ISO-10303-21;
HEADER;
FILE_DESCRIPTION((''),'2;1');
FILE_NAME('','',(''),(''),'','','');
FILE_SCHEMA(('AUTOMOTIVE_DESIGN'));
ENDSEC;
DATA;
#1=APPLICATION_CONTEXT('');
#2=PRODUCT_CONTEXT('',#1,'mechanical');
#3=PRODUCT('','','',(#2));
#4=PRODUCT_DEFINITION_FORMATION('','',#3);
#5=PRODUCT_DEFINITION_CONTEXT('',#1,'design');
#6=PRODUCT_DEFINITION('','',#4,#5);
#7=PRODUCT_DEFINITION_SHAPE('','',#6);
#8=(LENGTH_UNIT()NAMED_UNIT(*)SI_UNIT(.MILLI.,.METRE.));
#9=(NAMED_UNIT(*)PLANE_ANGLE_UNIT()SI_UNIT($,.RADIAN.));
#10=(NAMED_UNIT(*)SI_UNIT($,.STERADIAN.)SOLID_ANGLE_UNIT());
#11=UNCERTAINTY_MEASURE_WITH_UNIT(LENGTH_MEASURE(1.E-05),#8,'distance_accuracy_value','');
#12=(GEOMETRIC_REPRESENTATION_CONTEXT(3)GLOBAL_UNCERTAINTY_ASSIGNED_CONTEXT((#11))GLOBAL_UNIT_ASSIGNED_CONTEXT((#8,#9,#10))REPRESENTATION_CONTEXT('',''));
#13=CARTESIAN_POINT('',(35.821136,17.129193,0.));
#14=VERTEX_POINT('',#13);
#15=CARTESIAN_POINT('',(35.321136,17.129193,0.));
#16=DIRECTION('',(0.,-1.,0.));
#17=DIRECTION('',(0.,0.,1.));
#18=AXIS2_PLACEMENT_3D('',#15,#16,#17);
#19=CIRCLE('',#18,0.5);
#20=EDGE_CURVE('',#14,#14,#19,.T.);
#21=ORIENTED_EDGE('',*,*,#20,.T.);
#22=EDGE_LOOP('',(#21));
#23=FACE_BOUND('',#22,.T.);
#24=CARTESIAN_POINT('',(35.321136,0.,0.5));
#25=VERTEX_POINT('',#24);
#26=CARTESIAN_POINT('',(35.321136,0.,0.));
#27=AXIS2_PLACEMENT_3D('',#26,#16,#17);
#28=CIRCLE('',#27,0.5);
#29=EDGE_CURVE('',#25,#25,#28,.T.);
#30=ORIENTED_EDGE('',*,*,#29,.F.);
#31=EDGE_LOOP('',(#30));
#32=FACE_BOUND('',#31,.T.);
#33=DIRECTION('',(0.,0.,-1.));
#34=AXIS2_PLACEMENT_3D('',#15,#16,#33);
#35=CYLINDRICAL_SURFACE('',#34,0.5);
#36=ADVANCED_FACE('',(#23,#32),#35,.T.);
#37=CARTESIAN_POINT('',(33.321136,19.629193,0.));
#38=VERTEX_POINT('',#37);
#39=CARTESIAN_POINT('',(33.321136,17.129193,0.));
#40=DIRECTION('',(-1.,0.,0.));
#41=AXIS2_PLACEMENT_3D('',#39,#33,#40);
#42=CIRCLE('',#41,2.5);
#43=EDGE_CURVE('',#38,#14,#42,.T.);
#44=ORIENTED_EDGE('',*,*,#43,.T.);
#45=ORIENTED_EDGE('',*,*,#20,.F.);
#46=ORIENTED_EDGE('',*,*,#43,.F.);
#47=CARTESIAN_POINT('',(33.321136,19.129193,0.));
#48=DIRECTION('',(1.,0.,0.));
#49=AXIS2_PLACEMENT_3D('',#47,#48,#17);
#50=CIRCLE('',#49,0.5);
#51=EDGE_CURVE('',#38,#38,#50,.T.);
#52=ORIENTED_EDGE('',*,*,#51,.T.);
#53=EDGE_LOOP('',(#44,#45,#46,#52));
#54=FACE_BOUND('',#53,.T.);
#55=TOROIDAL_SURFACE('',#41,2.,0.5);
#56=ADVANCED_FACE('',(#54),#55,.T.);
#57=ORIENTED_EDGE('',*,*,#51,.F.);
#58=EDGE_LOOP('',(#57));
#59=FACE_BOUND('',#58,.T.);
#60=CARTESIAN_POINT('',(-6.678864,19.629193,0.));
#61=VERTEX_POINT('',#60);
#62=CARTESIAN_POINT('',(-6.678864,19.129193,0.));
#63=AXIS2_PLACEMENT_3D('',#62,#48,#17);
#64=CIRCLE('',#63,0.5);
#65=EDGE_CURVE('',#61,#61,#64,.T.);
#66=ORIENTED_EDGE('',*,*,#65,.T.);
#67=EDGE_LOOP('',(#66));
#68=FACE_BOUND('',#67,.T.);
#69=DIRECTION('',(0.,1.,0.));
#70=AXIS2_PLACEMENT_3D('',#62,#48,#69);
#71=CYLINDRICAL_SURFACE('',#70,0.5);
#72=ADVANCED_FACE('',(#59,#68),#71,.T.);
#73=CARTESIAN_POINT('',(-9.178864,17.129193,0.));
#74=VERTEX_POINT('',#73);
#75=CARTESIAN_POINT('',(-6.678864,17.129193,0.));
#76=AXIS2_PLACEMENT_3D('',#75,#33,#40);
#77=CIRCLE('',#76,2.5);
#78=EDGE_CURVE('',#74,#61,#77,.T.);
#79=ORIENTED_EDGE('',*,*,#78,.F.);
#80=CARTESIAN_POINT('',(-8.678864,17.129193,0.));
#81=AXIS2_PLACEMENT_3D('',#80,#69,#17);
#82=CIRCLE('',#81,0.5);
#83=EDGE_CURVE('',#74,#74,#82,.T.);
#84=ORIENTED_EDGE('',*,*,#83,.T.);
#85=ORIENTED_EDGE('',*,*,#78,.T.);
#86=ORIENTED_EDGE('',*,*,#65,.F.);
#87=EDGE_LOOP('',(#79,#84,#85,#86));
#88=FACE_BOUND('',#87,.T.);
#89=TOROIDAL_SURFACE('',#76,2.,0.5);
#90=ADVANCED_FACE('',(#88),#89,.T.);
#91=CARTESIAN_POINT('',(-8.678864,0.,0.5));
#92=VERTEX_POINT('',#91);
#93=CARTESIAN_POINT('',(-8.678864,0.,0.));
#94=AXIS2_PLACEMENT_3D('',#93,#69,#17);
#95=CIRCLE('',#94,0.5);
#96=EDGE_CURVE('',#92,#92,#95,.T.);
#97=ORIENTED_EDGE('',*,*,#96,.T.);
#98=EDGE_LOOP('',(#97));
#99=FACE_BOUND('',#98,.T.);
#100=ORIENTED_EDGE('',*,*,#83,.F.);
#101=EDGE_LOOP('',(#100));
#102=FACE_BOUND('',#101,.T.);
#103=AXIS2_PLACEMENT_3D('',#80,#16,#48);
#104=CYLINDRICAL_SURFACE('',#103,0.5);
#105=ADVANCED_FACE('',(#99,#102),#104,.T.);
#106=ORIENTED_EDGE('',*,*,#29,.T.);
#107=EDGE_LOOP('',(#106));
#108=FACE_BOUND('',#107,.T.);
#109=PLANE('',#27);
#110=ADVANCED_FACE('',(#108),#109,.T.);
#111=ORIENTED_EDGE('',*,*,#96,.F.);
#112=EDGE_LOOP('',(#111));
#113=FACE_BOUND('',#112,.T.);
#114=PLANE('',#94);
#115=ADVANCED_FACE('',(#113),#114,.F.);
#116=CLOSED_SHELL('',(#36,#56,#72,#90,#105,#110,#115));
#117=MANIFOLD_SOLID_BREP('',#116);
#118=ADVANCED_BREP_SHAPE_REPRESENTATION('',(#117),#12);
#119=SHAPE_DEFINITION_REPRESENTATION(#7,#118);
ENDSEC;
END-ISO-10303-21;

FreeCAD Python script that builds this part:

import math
import FreeCAD as App
import Part
import Sketcher
from FreeCAD import Vector
Q = App.Units.Quantity

doc = App.newDocument("Part")
body = doc.addObject("PartDesign::Body", "Body")

# Sketch on XZ plane
sketch1 = body.newObject("Sketcher::SketchObject", "Sketch")
sketch1.AttachmentSupport = (doc.getObject("XZ_Plane"), [""])
sketch1.MapMode = "FlatFace"
sketch1.addGeometry(Part.Circle(Vector(-8.7, 0, 0), Vector(0, 0, 1), 0.5), False)
sketch1.addConstraint([
    Sketcher.Constraint("PointOnObject", 0, 3, -1),
    Sketcher.Constraint("Diameter", 0, Q("1 mm")),
    Sketcher.Constraint("DistanceX", 0, 3, -1, 1, Q("8.678864 mm")),
])

# Sketch on XY plane
sketch2 = body.newObject("Sketcher::SketchObject", "Sketch001")
sketch2.AttachmentSupport = (doc.getObject("XY_Plane"), [""])
sketch2.MapMode = "FlatFace"
sketch2.addGeometry([
    Part.LineSegment(Vector(-8.7, 0, 0), Vector(-8.7, 17.1, 0)),  # 0
    Part.ArcOfCircle(Part.Circle(Vector(-6.7, 17.1, 0), Vector(0, 0, 1), 2), math.radians(90), math.radians(180)),  # 1
    Part.LineSegment(Vector(-6.7, 19.1, 0), Vector(33.3, 19.1, 0)),  # 2
    Part.ArcOfCircle(Part.Circle(Vector(33.3, 17.1, 0), Vector(0, 0, 1), 2), math.radians(0), math.radians(90)),  # 3
    Part.LineSegment(Vector(35.3, 17.1, 0), Vector(35.3, 0, 0)),  # 4
], False)
sketch2.addConstraint([
    Sketcher.Constraint("Tangent", 0, 2, 1, 2),
    Sketcher.Constraint("Tangent", 1, 1, 2, 1),
    Sketcher.Constraint("Tangent", 2, 2, 3, 2),
    Sketcher.Constraint("Tangent", 3, 1, 4, 1),
    Sketcher.Constraint("Vertical", 0),
    Sketcher.Constraint("Horizontal", 2),
    Sketcher.Constraint("Vertical", 4),
    Sketcher.Constraint("Equal", 1, 3),
    Sketcher.Constraint("PointOnObject", 0, 1, -1),
    Sketcher.Constraint("PointOnObject", 4, 2, -1),
    Sketcher.Constraint("Radius", 1, Q("2 mm")),
    Sketcher.Constraint("DistanceX", 2, 1, 2, 2, Q("40 mm")),
    Sketcher.Constraint("DistanceY", 0, 1, 0, 2, Q("17.129193 mm")),
    Sketcher.Constraint("DistanceX", 1, 3, -1, 1, Q("6.678864 mm")),
])
doc.recompute()

additivepipe = body.newObject("PartDesign::AdditivePipe", "AdditivePipe")
additivepipe.Profile = sketch1
additivepipe.Spine = (sketch2, ["Edge1", "Edge2", "Edge3", "Edge4", "Edge5"])

doc.recompute()
